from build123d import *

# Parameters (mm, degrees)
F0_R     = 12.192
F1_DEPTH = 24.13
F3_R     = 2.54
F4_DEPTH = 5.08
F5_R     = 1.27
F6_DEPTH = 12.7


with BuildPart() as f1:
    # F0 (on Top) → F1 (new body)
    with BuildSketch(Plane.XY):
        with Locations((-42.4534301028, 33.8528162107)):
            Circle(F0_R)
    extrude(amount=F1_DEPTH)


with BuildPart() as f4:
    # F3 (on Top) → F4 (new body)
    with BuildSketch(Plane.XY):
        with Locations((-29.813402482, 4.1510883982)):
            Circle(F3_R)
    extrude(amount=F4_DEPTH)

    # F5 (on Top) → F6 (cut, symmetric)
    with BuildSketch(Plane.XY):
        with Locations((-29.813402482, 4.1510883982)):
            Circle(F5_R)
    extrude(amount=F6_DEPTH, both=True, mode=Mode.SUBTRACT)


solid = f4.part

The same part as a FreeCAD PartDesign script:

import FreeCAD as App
import Part
import Sketcher
from FreeCAD import Vector
Q = App.Units.Quantity

doc = App.newDocument("Part")
body = doc.addObject("PartDesign::Body", "Body")

# Sketch on XY plane
sketch1 = body.newObject("Sketcher::SketchObject", "Sketch")
sketch1.AttachmentSupport = (doc.getObject("XY_Plane"), [""])
sketch1.MapMode = "FlatFace"
sketch1.addGeometry(Part.Circle(Vector(-42.45343, 33.852816, 0), Vector(0, 0, 1), 12.192), False)
sketch1.addConstraint([
    Sketcher.Constraint("Diameter", 0, Q("0.96 in")),
    Sketcher.Constraint("DistanceX", 0, 3, -1, 1, 42.45343),
    Sketcher.Constraint("DistanceY", -1, 1, 0, 3, 33.852816),
])
pad1 = body.newObject("PartDesign::Pad", "Pad")
pad1.Profile = sketch1
pad1.Length = Q("0.95 in")
body2 = doc.addObject("PartDesign::Body", "Body001")

# Sketch on XY plane
sketch2 = body2.newObject("Sketcher::SketchObject", "Sketch001")
sketch2.AttachmentSupport = (doc.getObject("XY_Plane001"), [""])
sketch2.MapMode = "FlatFace"
sketch2.addGeometry(Part.Circle(Vector(-29.813402, 4.151088, 0), Vector(0, 0, 1), 2.54), False)
sketch2.addConstraint([
    Sketcher.Constraint("Diameter", 0, Q("0.2 in")),
    Sketcher.Constraint("DistanceY", -1, 1, 0, 3, 4.151088),
    Sketcher.Constraint("DistanceX", 0, 3, -1, 1, 29.813402),
])
pad2 = body2.newObject("PartDesign::Pad", "Pad001")
pad2.Profile = sketch2
pad2.Length = Q("0.2 in")

# Sketch on XY plane
sketch3 = body2.newObject("Sketcher::SketchObject", "Sketch002")
sketch3.AttachmentSupport = (doc.getObject("XY_Plane001"), [""])
sketch3.MapMode = "FlatFace"
sketch3.addGeometry(Part.Circle(Vector(-29.813402, 4.151088, 0), Vector(0, 0, 1), 1.27), False)
sketch3.addConstraint([
    Sketcher.Constraint("Diameter", 0, Q("0.1 in")),
    Sketcher.Constraint("DistanceY", -1, 1, 0, 3, 4.151088),
    Sketcher.Constraint("DistanceX", 0, 3, -1, 1, 29.813402),
])
pocket1 = body2.newObject("PartDesign::Pocket", "Pocket")
pocket1.Profile = sketch3
pocket1.Length = Q("1 in")
pocket1.Midplane = True
body.Visibility = False

doc.recompute()
